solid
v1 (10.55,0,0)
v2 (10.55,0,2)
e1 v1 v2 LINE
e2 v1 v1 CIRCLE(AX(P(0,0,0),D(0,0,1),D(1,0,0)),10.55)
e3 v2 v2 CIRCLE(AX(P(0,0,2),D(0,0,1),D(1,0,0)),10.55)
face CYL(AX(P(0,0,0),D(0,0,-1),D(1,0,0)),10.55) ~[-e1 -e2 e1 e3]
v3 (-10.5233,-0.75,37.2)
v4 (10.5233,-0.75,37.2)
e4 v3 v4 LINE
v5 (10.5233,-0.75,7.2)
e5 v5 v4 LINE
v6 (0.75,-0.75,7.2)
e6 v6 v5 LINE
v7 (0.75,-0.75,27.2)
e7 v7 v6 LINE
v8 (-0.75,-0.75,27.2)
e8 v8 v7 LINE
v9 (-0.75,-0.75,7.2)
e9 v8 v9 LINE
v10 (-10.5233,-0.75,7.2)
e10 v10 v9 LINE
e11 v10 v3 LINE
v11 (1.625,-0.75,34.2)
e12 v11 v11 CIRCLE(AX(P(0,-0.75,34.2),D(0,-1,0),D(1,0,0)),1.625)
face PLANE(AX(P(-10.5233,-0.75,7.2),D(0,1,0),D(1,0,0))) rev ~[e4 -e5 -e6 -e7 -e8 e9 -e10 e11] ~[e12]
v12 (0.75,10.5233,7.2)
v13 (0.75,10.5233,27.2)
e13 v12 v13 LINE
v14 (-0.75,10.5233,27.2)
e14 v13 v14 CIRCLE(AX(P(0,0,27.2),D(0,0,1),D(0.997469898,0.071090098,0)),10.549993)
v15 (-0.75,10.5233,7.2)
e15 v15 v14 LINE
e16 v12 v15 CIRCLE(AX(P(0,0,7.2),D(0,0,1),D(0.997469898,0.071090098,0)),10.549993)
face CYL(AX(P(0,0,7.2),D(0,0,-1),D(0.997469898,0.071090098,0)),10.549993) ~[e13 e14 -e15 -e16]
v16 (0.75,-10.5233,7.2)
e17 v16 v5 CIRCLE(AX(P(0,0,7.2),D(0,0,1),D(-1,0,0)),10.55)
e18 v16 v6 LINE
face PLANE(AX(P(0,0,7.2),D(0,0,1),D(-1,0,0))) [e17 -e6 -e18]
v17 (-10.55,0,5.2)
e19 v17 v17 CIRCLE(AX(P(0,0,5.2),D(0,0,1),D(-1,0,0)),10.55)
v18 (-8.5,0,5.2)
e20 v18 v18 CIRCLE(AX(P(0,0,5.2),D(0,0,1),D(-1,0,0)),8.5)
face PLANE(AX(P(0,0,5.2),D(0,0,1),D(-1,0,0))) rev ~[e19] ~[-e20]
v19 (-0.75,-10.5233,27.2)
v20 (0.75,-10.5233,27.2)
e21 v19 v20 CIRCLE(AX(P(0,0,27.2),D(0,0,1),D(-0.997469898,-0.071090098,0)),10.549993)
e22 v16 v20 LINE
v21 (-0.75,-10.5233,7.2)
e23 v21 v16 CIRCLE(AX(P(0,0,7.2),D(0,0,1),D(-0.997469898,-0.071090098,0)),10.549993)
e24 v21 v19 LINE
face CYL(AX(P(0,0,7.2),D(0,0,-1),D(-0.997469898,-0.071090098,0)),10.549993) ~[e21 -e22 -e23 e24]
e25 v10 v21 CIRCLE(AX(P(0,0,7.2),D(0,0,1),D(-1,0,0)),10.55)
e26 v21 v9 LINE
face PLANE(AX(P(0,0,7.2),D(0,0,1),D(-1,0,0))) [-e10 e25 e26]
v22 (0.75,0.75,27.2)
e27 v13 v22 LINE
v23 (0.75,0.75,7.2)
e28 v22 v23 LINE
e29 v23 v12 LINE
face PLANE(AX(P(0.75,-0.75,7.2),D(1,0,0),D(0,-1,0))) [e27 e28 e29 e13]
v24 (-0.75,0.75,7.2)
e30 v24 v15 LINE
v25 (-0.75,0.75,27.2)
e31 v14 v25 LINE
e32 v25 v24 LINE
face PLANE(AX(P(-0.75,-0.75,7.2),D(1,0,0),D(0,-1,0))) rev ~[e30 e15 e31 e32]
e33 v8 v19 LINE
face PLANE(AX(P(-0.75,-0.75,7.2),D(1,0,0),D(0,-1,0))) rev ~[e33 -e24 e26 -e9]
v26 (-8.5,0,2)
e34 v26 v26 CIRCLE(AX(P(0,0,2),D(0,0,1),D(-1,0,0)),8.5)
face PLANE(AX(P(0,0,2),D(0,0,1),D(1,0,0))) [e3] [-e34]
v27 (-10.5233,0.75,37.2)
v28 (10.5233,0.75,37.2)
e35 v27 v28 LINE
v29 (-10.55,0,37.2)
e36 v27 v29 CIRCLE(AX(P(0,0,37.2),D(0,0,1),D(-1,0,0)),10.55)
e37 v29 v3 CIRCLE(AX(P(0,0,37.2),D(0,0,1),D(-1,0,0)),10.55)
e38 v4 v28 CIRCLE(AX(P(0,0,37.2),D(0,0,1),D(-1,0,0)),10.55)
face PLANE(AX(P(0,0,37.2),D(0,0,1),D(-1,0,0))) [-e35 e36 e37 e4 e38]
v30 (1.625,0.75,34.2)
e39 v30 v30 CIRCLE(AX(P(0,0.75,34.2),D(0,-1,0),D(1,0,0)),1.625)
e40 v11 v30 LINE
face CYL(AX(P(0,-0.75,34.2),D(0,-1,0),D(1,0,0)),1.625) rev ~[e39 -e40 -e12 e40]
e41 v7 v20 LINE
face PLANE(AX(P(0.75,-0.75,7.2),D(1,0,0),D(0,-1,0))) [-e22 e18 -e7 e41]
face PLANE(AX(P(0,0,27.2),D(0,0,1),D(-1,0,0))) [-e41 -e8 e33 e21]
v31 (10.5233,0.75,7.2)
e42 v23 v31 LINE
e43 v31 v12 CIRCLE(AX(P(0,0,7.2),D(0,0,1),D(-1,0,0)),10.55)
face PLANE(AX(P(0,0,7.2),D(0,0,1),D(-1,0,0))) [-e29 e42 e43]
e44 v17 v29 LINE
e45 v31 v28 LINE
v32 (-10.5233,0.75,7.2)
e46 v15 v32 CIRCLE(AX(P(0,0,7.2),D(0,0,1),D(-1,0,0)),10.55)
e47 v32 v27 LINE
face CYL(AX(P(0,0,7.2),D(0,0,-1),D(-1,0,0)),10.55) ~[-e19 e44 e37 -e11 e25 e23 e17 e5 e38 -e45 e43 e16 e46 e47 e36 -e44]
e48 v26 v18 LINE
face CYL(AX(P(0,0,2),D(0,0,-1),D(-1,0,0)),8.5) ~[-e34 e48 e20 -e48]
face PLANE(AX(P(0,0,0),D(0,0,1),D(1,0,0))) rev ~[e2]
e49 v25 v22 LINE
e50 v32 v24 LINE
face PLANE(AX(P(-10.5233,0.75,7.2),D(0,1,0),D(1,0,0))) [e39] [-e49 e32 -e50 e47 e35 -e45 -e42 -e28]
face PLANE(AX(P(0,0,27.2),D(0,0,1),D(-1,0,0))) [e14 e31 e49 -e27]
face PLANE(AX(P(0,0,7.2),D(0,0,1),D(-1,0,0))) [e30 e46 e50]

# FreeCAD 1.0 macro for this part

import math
import FreeCAD as App
import Part
import Sketcher
from FreeCAD import Vector
Q = App.Units.Quantity

doc = App.newDocument("Part")
params = doc.addObject("Spreadsheet::Sheet", "Params")
for row, (alias, value) in enumerate([
    ("sketch1_diameter", "21.1 mm"),
    ("pad1_length", "2 mm"),
    ("sketch2_diameter", "17 mm"),
    ("pad2_length", "3.2 mm"),
    ("sketch3_diameter", "21.1 mm"),
    ("pad3_length", "2 mm"),
    ("sketch4_radius", "10.55 mm"),
    ("pad4_length", "30 mm"),
    ("sketch5_diameter", "3.25 mm"),
    ("pocket1_length", "1.5 mm"),
    ("sketch6_radius", "10.55 mm"),
    ("pad5_length", "20 mm"),
], start=1):
    params.set(f"A{row}", alias)
    params.set(f"B{row}", "=" + value)
    params.setAlias(f"B{row}", alias)

body = doc.addObject("PartDesign::Body", "Body")

sketch1 = doc.addObject("Sketcher::SketchObject", "Sketch")
body.addObject(sketch1)
sketch1.AttachmentSupport = (doc.XY_Plane, [""])
sketch1.MapMode = "FlatFace"
sketch1.addGeometry(Part.Circle(Vector(0, 0, 0), Vector(0, 0, 1), 11), False)
sketch1.addConstraint(Sketcher.Constraint("Coincident", 0, 3, -1, 1))
sketch1.addConstraint(Sketcher.Constraint("Diameter", 0, Q("21.1 mm")))
sketch1.setExpression("Constraints[1]", "Params.sketch1_diameter")
pad1 = doc.addObject("PartDesign::Pad", "Pad")
body.addObject(pad1)
pad1.Profile = sketch1
pad1.setExpression("Length", "Params.pad1_length")

sketch2 = doc.addObject("Sketcher::SketchObject", "Sketch001")
body.addObject(sketch2)
sketch2.AttachmentSupport = (doc.XY_Plane, [""])
sketch2.MapMode = "FlatFace"
sketch2.AttachmentOffset = App.Placement(Vector(0, 0, 2), App.Rotation())
sketch2.addGeometry(Part.Circle(Vector(0, 0, 0), Vector(0, 0, 1), 8), False)
sketch2.addConstraint(Sketcher.Constraint("Coincident", 0, 3, -1, 1))
sketch2.addConstraint(Sketcher.Constraint("Diameter", 0, Q("17 mm")))
sketch2.setExpression("Constraints[1]", "Params.sketch2_diameter")
pad2 = doc.addObject("PartDesign::Pad", "Pad001")
body.addObject(pad2)
pad2.Profile = sketch2
pad2.setExpression("Length", "Params.pad2_length")

sketch3 = doc.addObject("Sketcher::SketchObject", "Sketch002")
body.addObject(sketch3)
sketch3.AttachmentSupport = (doc.XY_Plane, [""])
sketch3.MapMode = "FlatFace"
sketch3.AttachmentOffset = App.Placement(Vector(0, 0, 5.2), App.Rotation())
sketch3.addGeometry(Part.Circle(Vector(0, 0, 0), Vector(0, 0, 1), 11), False)
sketch3.addConstraint(Sketcher.Constraint("Coincident", 0, 3, -1, 1))
sketch3.addConstraint(Sketcher.Constraint("Diameter", 0, Q("21.1 mm")))
sketch3.setExpression("Constraints[1]", "Params.sketch3_diameter")
pad3 = doc.addObject("PartDesign::Pad", "Pad002")
body.addObject(pad3)
pad3.Profile = sketch3
pad3.setExpression("Length", "Params.pad3_length")

sketch4 = doc.addObject("Sketcher::SketchObject", "Sketch003")
body.addObject(sketch4)
sketch4.AttachmentSupport = (doc.XY_Plane, [""])
sketch4.MapMode = "FlatFace"
sketch4.AttachmentOffset = App.Placement(Vector(0, 0, 7.2), App.Rotation())
sketch4.addGeometry(Part.LineSegment(Vector(10.5, 0.8, 0), Vector(-10.5, 0.8, 0)), False)
sketch4.addGeometry(Part.ArcOfCircle(Part.Circle(Vector(0, 0, 0), Vector(0, 0, 1), 10.6), math.radians(175.92), math.radians(184.08)), False)
sketch4.addGeometry(Part.LineSegment(Vector(-10.5, -0.8, 0), Vector(10.5, -0.8, 0)), False)
sketch4.addGeometry(Part.ArcOfCircle(Part.Circle(Vector(0, 0, 0), Vector(0, 0, 1), 10.6), math.radians(-4.08), math.radians(4.08)), False)
sketch4.addConstraint(Sketcher.Constraint("Coincident", 0, 2, 1, 1))
sketch4.addConstraint(Sketcher.Constraint("Coincident", 1, 2, 2, 1))
sketch4.addConstraint(Sketcher.Constraint("Coincident", 2, 2, 3, 1))
sketch4.addConstraint(Sketcher.Constraint("Coincident", 3, 2, 0, 1))
sketch4.addConstraint(Sketcher.Constraint("Horizontal", 0))
sketch4.addConstraint(Sketcher.Constraint("Horizontal", 2))
sketch4.addConstraint(Sketcher.Constraint("Coincident", 1, 3, -1, 1))
sketch4.addConstraint(Sketcher.Constraint("Coincident", 3, 3, -1, 1))
sketch4.addConstraint(Sketcher.Constraint("Equal", 1, 3))
sketch4.addConstraint(Sketcher.Constraint("Vertical", 0, 2, 1, 2))
sketch4.addConstraint(Sketcher.Constraint("DistanceY", -1, 1, 0, 2, Q("0.75 mm")))
sketch4.addConstraint(Sketcher.Constraint("Radius", 1, Q("10.55 mm")))
sketch4.setExpression("Constraints[11]", "Params.sketch4_radius")
pad4 = doc.addObject("PartDesign::Pad", "Pad003")
body.addObject(pad4)
pad4.Profile = sketch4
pad4.setExpression("Length", "Params.pad4_length")

sketch5 = doc.addObject("Sketcher::SketchObject", "Sketch004")
body.addObject(sketch5)
sketch5.AttachmentSupport = (doc.XZ_Plane, [""])
sketch5.MapMode = "FlatFace"
sketch5.AttachmentOffset = App.Placement(Vector(0, 0, 0.75), App.Rotation())
sketch5.addGeometry(Part.Circle(Vector(0, 34.2, 0), Vector(0, 0, 1), 1.6), False)
sketch5.addConstraint(Sketcher.Constraint("PointOnObject", 0, 3, -2))
sketch5.addConstraint(Sketcher.Constraint("Diameter", 0, Q("3.25 mm")))
sketch5.addConstraint(Sketcher.Constraint("DistanceY", -1, 1, 0, 3, Q("34.2 mm")))
sketch5.setExpression("Constraints[1]", "Params.sketch5_diameter")
pocket1 = doc.addObject("PartDesign::Pocket", "Pocket")
body.addObject(pocket1)
pocket1.Profile = sketch5
pocket1.setExpression("Length", "Params.pocket1_length")

sketch6 = doc.addObject("Sketcher::SketchObject", "Sketch005")
body.addObject(sketch6)
sketch6.AttachmentSupport = (doc.XY_Plane, [""])
sketch6.MapMode = "FlatFace"
sketch6.AttachmentOffset = App.Placement(Vector(0, 0, 7.2), App.Rotation())
sketch6.addGeometry(Part.LineSegment(Vector(0.8, -10.5, 0), Vector(0.8, 10.5, 0)), False)
sketch6.addGeometry(Part.ArcOfCircle(Part.Circle(Vector(0, 0, 0), Vector(0, 0, 1), 10.5), math.radians(85.92), math.radians(94.08)), False)
sketch6.addGeometry(Part.LineSegment(Vector(-0.8, 10.5, 0), Vector(-0.8, -10.5, 0)), False)
sketch6.addGeometry(Part.ArcOfCircle(Part.Circle(Vector(0, 0, 0), Vector(0, 0, 1), 10.5), math.radians(-94.08), math.radians(-85.92)), False)
sketch6.addConstraint(Sketcher.Constraint("Coincident", 0, 2, 1, 1))
sketch6.addConstraint(Sketcher.Constraint("Coincident", 1, 2, 2, 1))
sketch6.addConstraint(Sketcher.Constraint("Coincident", 2, 2, 3, 1))
sketch6.addConstraint(Sketcher.Constraint("Coincident", 3, 2, 0, 1))
sketch6.addConstraint(Sketcher.Constraint("Vertical", 0))
sketch6.addConstraint(Sketcher.Constraint("Vertical", 2))
sketch6.addConstraint(Sketcher.Constraint("Coincident", 1, 3, -1, 1))
sketch6.addConstraint(Sketcher.Constraint("Coincident", 3, 3, -1, 1))
sketch6.addConstraint(Sketcher.Constraint("Equal", 1, 3))
sketch6.addConstraint(Sketcher.Constraint("Horizontal", 0, 2, 1, 2))
sketch6.addConstraint(Sketcher.Constraint("DistanceX", -1, 1, 0, 2, Q("0.75 mm")))
sketch6.addConstraint(Sketcher.Constraint("Radius", 1, Q("10.55 mm")))
sketch6.setExpression("Constraints[11]", "Params.sketch6_radius")
pad5 = doc.addObject("PartDesign::Pad", "Pad004")
body.addObject(pad5)
pad5.Profile = sketch6
pad5.setExpression("Length", "Params.pad5_length")

doc.recompute()
